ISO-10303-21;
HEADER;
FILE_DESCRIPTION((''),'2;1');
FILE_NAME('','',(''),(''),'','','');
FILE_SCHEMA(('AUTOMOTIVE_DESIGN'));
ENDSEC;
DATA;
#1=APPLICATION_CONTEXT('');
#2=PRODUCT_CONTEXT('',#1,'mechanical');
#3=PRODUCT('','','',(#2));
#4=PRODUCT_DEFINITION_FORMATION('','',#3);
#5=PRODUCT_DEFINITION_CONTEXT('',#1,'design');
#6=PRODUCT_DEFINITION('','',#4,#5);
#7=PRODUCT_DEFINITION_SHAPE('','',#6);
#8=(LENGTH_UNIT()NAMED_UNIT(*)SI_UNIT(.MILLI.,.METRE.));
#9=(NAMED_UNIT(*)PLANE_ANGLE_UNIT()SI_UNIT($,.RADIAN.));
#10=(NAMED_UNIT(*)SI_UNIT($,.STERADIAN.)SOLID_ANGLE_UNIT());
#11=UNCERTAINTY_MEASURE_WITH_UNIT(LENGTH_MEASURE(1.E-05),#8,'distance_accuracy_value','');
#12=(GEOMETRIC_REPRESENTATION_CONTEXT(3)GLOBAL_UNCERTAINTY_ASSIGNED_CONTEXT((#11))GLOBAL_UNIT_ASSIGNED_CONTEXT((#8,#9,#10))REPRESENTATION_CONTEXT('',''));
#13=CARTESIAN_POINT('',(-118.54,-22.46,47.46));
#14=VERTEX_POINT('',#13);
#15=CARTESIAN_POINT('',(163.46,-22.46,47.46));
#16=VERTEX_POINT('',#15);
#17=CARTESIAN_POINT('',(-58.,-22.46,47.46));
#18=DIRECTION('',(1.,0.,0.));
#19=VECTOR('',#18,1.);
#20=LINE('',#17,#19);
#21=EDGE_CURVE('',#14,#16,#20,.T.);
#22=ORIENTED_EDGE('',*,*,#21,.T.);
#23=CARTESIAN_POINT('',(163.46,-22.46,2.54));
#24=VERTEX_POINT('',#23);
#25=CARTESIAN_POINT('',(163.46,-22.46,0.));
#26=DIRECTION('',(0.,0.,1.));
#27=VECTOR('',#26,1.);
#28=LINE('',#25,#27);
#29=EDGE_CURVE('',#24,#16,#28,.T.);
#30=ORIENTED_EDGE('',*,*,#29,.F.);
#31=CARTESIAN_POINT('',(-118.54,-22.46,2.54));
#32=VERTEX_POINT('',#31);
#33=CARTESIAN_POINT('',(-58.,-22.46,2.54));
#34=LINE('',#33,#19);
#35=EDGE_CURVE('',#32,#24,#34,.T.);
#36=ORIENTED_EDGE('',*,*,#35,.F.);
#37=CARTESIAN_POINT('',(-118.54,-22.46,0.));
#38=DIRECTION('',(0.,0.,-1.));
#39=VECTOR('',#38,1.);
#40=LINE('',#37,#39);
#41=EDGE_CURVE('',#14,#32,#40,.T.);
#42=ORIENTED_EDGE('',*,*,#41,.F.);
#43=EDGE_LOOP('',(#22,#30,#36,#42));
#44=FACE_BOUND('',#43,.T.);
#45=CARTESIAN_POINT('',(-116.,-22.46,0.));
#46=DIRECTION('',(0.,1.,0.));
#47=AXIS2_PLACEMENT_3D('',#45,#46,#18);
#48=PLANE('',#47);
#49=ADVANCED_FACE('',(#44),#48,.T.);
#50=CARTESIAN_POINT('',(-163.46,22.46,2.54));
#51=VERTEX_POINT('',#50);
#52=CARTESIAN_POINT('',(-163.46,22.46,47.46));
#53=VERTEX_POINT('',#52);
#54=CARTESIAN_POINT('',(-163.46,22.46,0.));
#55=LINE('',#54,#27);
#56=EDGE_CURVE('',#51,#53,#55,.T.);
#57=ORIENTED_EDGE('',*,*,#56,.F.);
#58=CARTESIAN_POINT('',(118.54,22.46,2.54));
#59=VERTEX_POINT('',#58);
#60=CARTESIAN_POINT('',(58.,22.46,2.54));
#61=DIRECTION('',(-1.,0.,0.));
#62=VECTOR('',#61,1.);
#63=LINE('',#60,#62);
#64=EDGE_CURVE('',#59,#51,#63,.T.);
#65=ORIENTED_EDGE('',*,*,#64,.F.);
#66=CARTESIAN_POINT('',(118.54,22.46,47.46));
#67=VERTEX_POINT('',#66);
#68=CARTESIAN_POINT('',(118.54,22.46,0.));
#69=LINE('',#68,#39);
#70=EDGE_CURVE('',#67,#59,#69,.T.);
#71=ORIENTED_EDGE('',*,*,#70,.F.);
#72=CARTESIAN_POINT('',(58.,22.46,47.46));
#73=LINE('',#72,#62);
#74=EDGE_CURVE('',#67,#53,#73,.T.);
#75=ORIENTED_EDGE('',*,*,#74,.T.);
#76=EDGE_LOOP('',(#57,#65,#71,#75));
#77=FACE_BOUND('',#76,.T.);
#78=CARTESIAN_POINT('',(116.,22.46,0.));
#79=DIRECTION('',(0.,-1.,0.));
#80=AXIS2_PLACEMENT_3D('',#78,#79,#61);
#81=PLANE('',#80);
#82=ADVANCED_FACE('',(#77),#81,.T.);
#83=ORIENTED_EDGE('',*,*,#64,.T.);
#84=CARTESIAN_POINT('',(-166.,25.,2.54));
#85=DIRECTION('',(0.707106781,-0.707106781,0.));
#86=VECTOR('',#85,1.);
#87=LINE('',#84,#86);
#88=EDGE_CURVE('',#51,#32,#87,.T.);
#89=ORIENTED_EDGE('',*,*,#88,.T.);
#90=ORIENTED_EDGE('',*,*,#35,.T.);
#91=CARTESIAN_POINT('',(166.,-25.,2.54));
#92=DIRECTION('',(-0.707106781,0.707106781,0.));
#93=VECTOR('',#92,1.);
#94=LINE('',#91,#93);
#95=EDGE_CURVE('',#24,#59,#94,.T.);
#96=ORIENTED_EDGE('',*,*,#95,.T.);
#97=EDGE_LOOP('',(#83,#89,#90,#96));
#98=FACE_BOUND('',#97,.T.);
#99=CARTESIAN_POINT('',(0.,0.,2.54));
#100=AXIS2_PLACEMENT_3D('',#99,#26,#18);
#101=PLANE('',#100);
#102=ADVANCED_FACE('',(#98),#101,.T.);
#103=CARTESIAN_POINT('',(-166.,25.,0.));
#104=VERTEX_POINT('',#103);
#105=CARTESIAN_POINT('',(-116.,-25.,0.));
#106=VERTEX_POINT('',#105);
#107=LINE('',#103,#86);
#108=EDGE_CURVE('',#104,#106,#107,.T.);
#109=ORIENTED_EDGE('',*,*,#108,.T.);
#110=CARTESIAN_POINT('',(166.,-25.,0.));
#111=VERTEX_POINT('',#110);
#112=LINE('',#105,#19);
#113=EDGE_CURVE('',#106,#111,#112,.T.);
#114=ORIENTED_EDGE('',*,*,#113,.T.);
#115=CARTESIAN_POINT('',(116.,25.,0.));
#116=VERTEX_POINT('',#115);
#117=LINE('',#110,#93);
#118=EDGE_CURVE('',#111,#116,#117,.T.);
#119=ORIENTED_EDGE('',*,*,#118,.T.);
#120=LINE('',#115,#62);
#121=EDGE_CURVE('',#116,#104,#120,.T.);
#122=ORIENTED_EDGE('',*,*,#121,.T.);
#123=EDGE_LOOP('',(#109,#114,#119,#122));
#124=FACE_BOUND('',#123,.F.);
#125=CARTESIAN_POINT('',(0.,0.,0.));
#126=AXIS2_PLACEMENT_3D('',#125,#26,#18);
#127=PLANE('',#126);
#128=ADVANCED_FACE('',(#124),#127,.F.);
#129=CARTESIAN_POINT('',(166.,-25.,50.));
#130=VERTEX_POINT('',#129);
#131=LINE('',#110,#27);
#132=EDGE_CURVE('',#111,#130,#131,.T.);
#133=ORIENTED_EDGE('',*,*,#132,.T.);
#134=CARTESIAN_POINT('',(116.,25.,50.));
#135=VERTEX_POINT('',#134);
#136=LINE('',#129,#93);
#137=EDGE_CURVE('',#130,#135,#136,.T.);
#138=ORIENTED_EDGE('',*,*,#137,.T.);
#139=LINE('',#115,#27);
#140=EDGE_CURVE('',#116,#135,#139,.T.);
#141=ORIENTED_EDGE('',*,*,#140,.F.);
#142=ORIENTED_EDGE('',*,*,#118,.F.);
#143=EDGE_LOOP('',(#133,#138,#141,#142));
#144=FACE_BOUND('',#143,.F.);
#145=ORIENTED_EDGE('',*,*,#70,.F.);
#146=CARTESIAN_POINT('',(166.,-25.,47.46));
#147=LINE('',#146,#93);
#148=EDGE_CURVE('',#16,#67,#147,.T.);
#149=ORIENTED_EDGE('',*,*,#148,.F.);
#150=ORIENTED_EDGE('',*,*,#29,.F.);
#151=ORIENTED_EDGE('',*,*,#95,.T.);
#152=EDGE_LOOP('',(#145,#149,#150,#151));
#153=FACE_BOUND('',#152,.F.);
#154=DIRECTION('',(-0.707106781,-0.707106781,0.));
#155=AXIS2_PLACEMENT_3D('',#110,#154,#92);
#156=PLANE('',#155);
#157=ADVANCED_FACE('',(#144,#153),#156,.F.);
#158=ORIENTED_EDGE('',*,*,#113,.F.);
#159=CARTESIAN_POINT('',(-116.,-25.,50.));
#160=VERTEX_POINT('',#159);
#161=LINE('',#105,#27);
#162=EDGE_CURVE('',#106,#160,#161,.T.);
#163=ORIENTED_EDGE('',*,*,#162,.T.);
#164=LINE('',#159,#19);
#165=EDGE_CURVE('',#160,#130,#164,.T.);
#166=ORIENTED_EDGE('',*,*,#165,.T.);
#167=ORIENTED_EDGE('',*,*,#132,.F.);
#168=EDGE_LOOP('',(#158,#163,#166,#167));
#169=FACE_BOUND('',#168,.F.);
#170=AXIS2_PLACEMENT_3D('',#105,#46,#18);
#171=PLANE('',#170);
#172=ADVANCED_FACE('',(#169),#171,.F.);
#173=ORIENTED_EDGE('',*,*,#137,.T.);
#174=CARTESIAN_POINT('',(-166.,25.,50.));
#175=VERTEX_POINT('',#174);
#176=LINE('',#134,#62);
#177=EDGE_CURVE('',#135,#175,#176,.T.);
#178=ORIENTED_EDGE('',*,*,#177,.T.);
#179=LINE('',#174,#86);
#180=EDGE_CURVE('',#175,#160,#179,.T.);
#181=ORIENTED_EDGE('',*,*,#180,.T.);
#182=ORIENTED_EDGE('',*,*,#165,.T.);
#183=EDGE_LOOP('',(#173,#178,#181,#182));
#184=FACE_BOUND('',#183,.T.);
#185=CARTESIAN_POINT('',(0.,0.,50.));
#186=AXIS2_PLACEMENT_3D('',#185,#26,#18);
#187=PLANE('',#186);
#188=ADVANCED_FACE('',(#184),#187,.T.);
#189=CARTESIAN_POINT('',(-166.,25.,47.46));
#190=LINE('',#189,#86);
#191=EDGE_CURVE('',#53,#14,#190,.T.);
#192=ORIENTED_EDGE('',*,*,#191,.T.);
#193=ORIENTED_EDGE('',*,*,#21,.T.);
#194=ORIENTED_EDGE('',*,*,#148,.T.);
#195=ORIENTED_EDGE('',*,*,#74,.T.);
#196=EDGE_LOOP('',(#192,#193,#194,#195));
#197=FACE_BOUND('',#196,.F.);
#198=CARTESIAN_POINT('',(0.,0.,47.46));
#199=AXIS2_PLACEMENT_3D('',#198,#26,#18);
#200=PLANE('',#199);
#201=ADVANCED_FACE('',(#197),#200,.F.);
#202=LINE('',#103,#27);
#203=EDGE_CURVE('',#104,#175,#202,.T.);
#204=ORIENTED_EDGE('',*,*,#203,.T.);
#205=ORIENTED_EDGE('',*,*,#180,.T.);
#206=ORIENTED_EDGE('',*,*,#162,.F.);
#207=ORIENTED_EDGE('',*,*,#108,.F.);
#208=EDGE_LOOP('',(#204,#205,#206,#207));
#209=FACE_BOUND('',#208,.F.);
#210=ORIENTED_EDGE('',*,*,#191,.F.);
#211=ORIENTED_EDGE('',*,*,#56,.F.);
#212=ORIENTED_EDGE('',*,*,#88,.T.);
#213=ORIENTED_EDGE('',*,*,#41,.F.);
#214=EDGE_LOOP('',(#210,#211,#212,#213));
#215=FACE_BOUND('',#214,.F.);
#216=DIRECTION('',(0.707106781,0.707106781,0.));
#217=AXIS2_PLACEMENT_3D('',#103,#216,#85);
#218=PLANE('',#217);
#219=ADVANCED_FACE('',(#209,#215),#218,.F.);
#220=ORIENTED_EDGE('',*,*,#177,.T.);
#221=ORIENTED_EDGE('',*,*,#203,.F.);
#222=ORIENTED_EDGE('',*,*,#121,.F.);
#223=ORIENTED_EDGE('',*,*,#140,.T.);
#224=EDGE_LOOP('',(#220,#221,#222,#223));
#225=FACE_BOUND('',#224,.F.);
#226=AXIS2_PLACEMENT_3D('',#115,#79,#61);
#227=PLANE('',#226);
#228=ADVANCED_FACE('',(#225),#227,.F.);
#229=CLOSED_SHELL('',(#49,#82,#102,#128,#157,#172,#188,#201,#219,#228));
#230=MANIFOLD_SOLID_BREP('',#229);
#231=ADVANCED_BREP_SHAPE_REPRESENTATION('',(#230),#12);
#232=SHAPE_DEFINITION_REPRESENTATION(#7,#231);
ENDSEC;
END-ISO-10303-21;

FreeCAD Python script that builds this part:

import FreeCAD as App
import Part
import Sketcher

V = App.Vector
Q = App.Units.Quantity


def faces_at(feature, points):
    """Names of the faces that lie closest to the given points."""
    faces = feature.Shape.Faces
    near = lambda p: min(range(len(faces)), key=lambda i: faces[i].distToShape(Part.Vertex(*p))[0])
    return sorted({f"Face{near(p) + 1}" for p in points})


def add_polygon(sketch, points):
    """Adds a closed chain of lines whose ends are joined by coincident constraints."""
    first, n = sketch.GeometryCount, len(points)
    for a, b in zip(points, points[1:] + points[:1]):
        sketch.addGeometry(Part.LineSegment(App.Vector(*a, 0), App.Vector(*b, 0)), False)
    for i in range(n):
        sketch.addConstraint(Sketcher.Constraint("Coincident", first + i, 2, first + (i + 1) % n, 1))

doc = App.newDocument("Part")
body = doc.addObject("PartDesign::Body", "Body")

# Sketch on XY plane
sketch1 = doc.addObject("Sketcher::SketchObject", "Sketch")
body.addObject(sketch1)
sketch1.AttachmentSupport = (doc.XY_Plane, [""])
sketch1.MapMode = "FlatFace"
add_polygon(sketch1, [(-116, -25), (166, -25), (116, 25), (-166, 25)])  # lines 0-3
sketch1.addConstraint([
    Sketcher.Constraint("Horizontal", 0),
    Sketcher.Constraint("Horizontal", 2),
    Sketcher.Constraint("Symmetric", 0, 2, 2, 2, -1, 1),
    Sketcher.Constraint("Parallel", 1, 3),
    Sketcher.Constraint("DistanceX", 0, 1, 0, 2, 282.0),
    Sketcher.Constraint("Angle", 1, Q("135 deg")),
    Sketcher.Constraint("DistanceX", -1, 1, 0, 2, 166.0),
])
pad1 = doc.addObject("PartDesign::Pad", "Pad")
body.addObject(pad1)
pad1.Profile = sketch1
pad1.Length = 50
doc.recompute()

thickness = doc.addObject("PartDesign::Thickness", "Thickness")
body.addObject(thickness)
thickness.Base = (pad1, faces_at(pad1, [(-141, 0, 25), (141, 0, 25)]))
thickness.Value = 2.54
thickness.Reversed = True
thickness.Join = "Arc"

doc.recompute()
